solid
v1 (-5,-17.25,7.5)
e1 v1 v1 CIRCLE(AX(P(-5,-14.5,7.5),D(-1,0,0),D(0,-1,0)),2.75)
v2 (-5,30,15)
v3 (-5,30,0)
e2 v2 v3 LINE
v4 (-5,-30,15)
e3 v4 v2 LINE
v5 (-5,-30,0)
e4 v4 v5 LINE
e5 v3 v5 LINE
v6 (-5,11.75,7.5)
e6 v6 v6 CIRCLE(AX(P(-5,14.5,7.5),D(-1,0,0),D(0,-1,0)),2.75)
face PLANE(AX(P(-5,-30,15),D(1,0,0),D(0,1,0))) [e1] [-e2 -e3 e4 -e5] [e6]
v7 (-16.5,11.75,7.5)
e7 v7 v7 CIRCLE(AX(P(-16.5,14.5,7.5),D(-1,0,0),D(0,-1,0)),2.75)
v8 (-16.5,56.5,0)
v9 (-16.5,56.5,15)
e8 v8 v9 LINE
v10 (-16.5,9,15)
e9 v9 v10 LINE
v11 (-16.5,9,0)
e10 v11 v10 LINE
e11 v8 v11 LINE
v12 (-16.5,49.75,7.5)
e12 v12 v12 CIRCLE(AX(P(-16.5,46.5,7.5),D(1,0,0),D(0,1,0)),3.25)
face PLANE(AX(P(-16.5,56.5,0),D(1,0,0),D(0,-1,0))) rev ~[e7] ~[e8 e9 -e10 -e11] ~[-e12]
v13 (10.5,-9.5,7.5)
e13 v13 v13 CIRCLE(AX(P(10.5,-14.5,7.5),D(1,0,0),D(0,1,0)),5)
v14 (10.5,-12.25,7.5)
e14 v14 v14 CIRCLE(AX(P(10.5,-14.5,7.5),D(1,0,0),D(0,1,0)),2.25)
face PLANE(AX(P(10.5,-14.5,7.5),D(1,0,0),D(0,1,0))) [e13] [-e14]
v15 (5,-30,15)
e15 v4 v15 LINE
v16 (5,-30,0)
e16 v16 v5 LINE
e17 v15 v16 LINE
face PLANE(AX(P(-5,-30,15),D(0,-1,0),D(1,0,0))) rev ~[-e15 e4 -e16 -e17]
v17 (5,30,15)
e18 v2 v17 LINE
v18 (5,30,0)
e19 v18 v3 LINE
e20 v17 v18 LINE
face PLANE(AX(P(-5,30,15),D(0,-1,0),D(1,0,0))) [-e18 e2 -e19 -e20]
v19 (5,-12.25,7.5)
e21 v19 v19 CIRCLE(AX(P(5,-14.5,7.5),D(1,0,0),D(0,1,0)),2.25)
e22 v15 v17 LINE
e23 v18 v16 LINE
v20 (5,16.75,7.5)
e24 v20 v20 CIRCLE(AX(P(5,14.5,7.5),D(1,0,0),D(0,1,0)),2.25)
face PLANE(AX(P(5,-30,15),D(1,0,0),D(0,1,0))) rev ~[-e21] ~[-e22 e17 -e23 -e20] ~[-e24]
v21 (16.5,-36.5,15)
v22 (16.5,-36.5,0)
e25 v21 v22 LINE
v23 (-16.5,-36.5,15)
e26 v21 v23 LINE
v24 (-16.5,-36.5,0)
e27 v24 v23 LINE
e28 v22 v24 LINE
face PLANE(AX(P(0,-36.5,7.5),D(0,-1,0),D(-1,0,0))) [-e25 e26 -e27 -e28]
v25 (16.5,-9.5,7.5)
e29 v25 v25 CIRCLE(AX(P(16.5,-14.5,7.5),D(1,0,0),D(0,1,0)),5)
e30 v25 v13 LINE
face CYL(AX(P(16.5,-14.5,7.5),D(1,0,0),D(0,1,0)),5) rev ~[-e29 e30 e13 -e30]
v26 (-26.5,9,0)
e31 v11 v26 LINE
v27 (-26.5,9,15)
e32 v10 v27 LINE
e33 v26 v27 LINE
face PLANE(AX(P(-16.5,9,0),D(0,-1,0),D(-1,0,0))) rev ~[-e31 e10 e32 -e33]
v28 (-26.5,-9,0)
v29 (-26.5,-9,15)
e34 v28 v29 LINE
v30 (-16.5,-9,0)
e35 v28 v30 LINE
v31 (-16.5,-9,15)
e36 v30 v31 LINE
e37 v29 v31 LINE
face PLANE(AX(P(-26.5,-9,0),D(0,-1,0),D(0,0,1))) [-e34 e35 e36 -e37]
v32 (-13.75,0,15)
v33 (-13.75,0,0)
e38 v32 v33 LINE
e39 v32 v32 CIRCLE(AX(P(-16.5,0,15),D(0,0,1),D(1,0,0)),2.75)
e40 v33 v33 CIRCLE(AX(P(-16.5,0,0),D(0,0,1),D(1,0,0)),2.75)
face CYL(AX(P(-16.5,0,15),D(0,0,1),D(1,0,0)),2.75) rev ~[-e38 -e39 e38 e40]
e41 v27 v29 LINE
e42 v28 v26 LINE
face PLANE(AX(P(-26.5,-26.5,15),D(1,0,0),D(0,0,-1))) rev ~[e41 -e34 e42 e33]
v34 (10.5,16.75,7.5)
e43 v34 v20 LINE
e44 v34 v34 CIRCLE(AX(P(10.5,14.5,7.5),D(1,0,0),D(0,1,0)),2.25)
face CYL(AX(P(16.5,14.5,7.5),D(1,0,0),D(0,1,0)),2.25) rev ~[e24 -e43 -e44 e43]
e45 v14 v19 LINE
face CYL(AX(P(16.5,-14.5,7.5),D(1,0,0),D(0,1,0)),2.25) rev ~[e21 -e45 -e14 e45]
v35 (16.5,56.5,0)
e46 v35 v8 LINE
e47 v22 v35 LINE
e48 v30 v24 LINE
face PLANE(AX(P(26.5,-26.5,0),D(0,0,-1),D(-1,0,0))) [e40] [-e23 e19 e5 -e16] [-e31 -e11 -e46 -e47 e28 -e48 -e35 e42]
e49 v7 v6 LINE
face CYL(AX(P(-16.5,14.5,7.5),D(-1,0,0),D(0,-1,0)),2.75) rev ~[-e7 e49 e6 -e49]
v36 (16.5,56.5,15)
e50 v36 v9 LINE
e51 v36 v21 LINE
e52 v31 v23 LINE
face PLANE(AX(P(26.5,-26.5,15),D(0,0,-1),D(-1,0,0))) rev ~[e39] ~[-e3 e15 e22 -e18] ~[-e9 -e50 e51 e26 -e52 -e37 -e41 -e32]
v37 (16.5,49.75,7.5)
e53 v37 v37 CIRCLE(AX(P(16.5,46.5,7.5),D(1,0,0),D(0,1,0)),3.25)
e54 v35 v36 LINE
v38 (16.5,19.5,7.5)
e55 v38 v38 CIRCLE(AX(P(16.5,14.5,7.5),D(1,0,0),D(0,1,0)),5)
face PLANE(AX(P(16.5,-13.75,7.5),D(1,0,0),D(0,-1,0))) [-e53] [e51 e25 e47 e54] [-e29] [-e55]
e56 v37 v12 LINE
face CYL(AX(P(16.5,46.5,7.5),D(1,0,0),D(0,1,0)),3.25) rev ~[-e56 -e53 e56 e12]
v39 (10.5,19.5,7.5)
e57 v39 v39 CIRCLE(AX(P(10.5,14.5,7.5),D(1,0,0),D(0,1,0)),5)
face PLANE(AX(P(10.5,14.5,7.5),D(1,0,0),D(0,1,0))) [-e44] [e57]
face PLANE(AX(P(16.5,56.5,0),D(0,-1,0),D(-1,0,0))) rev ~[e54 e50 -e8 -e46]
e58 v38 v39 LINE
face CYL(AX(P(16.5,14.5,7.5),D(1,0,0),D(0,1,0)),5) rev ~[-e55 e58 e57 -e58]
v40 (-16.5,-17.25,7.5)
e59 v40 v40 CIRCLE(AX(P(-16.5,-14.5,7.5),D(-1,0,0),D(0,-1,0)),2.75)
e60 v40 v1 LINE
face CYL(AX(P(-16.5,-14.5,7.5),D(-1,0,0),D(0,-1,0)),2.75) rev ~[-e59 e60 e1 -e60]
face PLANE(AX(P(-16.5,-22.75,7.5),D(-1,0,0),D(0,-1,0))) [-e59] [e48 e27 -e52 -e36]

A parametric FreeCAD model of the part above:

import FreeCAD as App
import Part
import Sketcher
from FreeCAD import Vector
Q = App.Units.Quantity


def add_polygon(sketch, points):
    """Adds a closed chain of lines whose ends are joined by coincident constraints."""
    first, n = sketch.GeometryCount, len(points)
    for a, b in zip(points, points[1:] + points[:1]):
        sketch.addGeometry(Part.LineSegment(App.Vector(*a, 0), App.Vector(*b, 0)), False)
    for i in range(n):
        sketch.addConstraint(Sketcher.Constraint("Coincident", first + i, 2, first + (i + 1) % n, 1))

doc = App.newDocument("Part")
body = doc.addObject("PartDesign::Body", "Body")

# Sketch on XY plane
sketch1 = body.newObject("Sketcher::SketchObject", "Sketch")
sketch1.AttachmentSupport = (doc.getObject("XY_Plane"), [""])
sketch1.MapMode = "FlatFace"
add_polygon(sketch1, [(-16.5, 56.5), (-16.5, 9), (-26.5, 9), (-26.5, -26.5), (26.5, -26.5), (26.5, 9), (16.5, 9), (16.5, 56.5)])  # lines 0-7
sketch1.addConstraint(Sketcher.Constraint("Vertical", 0))
sketch1.addConstraint(Sketcher.Constraint("Horizontal", 1))
sketch1.addConstraint(Sketcher.Constraint("Vertical", 2))
sketch1.addConstraint(Sketcher.Constraint("Horizontal", 3))
sketch1.addConstraint(Sketcher.Constraint("Vertical", 4))
sketch1.addConstraint(Sketcher.Constraint("Horizontal", 5))
sketch1.addConstraint(Sketcher.Constraint("Vertical", 6))
sketch1.addConstraint(Sketcher.Constraint("Horizontal", 7))
sketch1.addConstraint(Sketcher.Constraint("Symmetric", 1, 2, 4, 2, -2))
sketch1.addConstraint(Sketcher.Constraint("Equal", 1, 5))
sketch1.addConstraint(Sketcher.Constraint("DistanceX", 1, 2, 1, 1, Q("10 mm")))
sketch1.addConstraint(Sketcher.Constraint("DistanceX", 3, 1, 3, 2, Q("53 mm")))
sketch1.addConstraint(Sketcher.Constraint("DistanceY", 0, 2, 0, 1, Q("47.5 mm")))
sketch1.addConstraint(Sketcher.Constraint("DistanceY", 2, 2, 2, 1, Q("35.5 mm")))
sketch1.addConstraint(Sketcher.Constraint("DistanceY", -1, 1, 0, 2, Q("9 mm")))
pad1 = body.newObject("PartDesign::Pad", "Pad")
pad1.Profile = sketch1
pad1.Length = 15

# Sketch on YZ plane
sketch2 = body.newObject("Sketcher::SketchObject", "Sketch001")
sketch2.AttachmentSupport = (doc.getObject("YZ_Plane"), [""])
sketch2.MapMode = "FlatFace"
sketch2.AttachmentOffset = App.Placement(Vector(0, 0, 16.5), App.Rotation())
sketch2.addGeometry(Part.Circle(Vector(46.5, 7.5, 0), Vector(0, 0, 1), 3.25), False)
sketch2.addConstraint(Sketcher.Constraint("Diameter", 0, Q("6.5 mm")))
sketch2.addConstraint(Sketcher.Constraint("DistanceX", -1, 1, 0, 3, Q("46.5 mm")))
sketch2.addConstraint(Sketcher.Constraint("DistanceY", -1, 1, 0, 3, Q("7.5 mm")))
pocket1 = body.newObject("PartDesign::Pocket", "Pocket")
pocket1.Profile = sketch2
pocket1.Length = 40

# Sketch on XY plane
sketch3 = body.newObject("Sketcher::SketchObject", "Sketch002")
sketch3.AttachmentSupport = (doc.getObject("XY_Plane"), [""])
sketch3.MapMode = "FlatFace"
sketch3.AttachmentOffset = App.Placement(Vector(0, 0, 15), App.Rotation())
sketch3.addGeometry(Part.Circle(Vector(-16.5, 0, 0), Vector(0, 0, 1), 2.75), False)
sketch3.addConstraint(Sketcher.Constraint("PointOnObject", 0, 3, -1))
sketch3.addConstraint(Sketcher.Constraint("Diameter", 0, Q("5.5 mm")))
sketch3.addConstraint(Sketcher.Constraint("DistanceX", 0, 3, -1, 1, Q("16.5 mm")))
pocket2 = body.newObject("PartDesign::Pocket", "Pocket001")
pocket2.Profile = sketch3
pocket2.Length = 20

# Sketch on XZ plane
sketch4 = body.newObject("Sketcher::SketchObject", "Sketch003")
sketch4.AttachmentSupport = (doc.getObject("XZ_Plane"), [""])
sketch4.MapMode = "FlatFace"
sketch4.AttachmentOffset = App.Placement(Vector(0, 0, 26.5), App.Rotation())
add_polygon(sketch4, [(26.5, 0), (26.5, 15), (-26.5, 15), (-26.5, 0)])  # lines 0-3
sketch4.addConstraint(Sketcher.Constraint("Vertical", 0))
sketch4.addConstraint(Sketcher.Constraint("Horizontal", 1))
sketch4.addConstraint(Sketcher.Constraint("Vertical", 2))
sketch4.addConstraint(Sketcher.Constraint("Horizontal", 3))
sketch4.addConstraint(Sketcher.Constraint("Symmetric", 2, 2, 3, 2, -1, 1))
sketch4.addConstraint(Sketcher.Constraint("DistanceX", 1, 2, 1, 1, Q("53 mm")))
sketch4.addConstraint(Sketcher.Constraint("DistanceY", 0, 1, 0, 2, Q("15 mm")))
pad2 = body.newObject("PartDesign::Pad", "Pad001")
pad2.Profile = sketch4
pad2.Length = 10

# Sketch on XY plane
sketch5 = body.newObject("Sketcher::SketchObject", "Sketch004")
sketch5.AttachmentSupport = (doc.getObject("XY_Plane"), [""])
sketch5.MapMode = "FlatFace"
sketch5.AttachmentOffset = App.Placement(Vector(0, 0, 15), App.Rotation())
add_polygon(sketch5, [(-5, 30), (-5, -30), (5, -30), (5, 30)])  # lines 0-3
sketch5.addConstraint(Sketcher.Constraint("Vertical", 0))
sketch5.addConstraint(Sketcher.Constraint("Horizontal", 1))
sketch5.addConstraint(Sketcher.Constraint("Vertical", 2))
sketch5.addConstraint(Sketcher.Constraint("Horizontal", 3))
sketch5.addConstraint(Sketcher.Constraint("Symmetric", 0, 2, 2, 2, -1, 1))
sketch5.addConstraint(Sketcher.Constraint("DistanceX", 1, 1, 1, 2, Q("10 mm")))
sketch5.addConstraint(Sketcher.Constraint("DistanceY", 0, 2, 0, 1, Q("60 mm")))
pocket3 = body.newObject("PartDesign::Pocket", "Pocket002")
pocket3.Profile = sketch5
pocket3.Length = 20

# Sketch on YZ plane
sketch6 = body.newObject("Sketcher::SketchObject", "Sketch005")
sketch6.AttachmentSupport = (doc.getObject("YZ_Plane"), [""])
sketch6.MapMode = "FlatFace"
sketch6.AttachmentOffset = App.Placement(Vector(0, 0, 26.5), App.Rotation())
add_polygon(sketch6, [(9, 0), (9, 15), (-36.5, 15), (-36.5, 0)])  # lines 0-3
sketch6.addConstraint(Sketcher.Constraint("Vertical", 0))
sketch6.addConstraint(Sketcher.Constraint("Horizontal", 1))
sketch6.addConstraint(Sketcher.Constraint("Vertical", 2))
sketch6.addConstraint(Sketcher.Constraint("Horizontal", 3))
sketch6.addConstraint(Sketcher.Constraint("PointOnObject", 2, 2, -1))
sketch6.addConstraint(Sketcher.Constraint("DistanceY", 0, 1, 0, 2, Q("15 mm")))
sketch6.addConstraint(Sketcher.Constraint("DistanceX", 1, 2, 1, 1, Q("45.5 mm")))
sketch6.addConstraint(Sketcher.Constraint("DistanceX", -1, 1, 0, 2, Q("9 mm")))
pocket4 = body.newObject("PartDesign::Pocket", "Pocket003")
pocket4.Profile = sketch6
pocket4.Length = 10

# Sketch on YZ plane
sketch7 = body.newObject("Sketcher::SketchObject", "Sketch006")
sketch7.AttachmentSupport = (doc.getObject("YZ_Plane"), [""])
sketch7.MapMode = "FlatFace"
sketch7.AttachmentOffset = App.Placement(Vector(0, 0, 16.5), App.Rotation())
sketch7.addGeometry(Part.Circle(Vector(-14.5, 7.5, 0), Vector(0, 0, 1), 2.25), False)
sketch7.addGeometry(Part.Circle(Vector(14.5, 7.5, 0), Vector(0, 0, 1), 2.25), False)
sketch7.addConstraint(Sketcher.Constraint("Equal", 0, 1))
sketch7.addConstraint(Sketcher.Constraint("Symmetric", 0, 3, 1, 3, -2))
sketch7.addConstraint(Sketcher.Constraint("Diameter", 0, Q("4.5 mm")))
sketch7.addConstraint(Sketcher.Constraint("DistanceX", 0, 3, 1, 3, Q("29 mm")))
sketch7.addConstraint(Sketcher.Constraint("DistanceY", -1, 1, 0, 3, Q("7.5 mm")))
pocket5 = body.newObject("PartDesign::Pocket", "Pocket004")
pocket5.Profile = sketch7
pocket5.Length = 100

# Sketch on YZ plane
sketch8 = body.newObject("Sketcher::SketchObject", "Sketch007")
sketch8.AttachmentSupport = (doc.getObject("YZ_Plane"), [""])
sketch8.MapMode = "FlatFace"
sketch8.AttachmentOffset = App.Placement(Vector(0, 0, -16.5), App.Rotation())
sketch8.addGeometry(Part.Circle(Vector(14.5, 7.5, 0), Vector(0, 0, 1), 2.75), False)
sketch8.addConstraint(Sketcher.Constraint("Diameter", 0, Q("5.5 mm")))
sketch8.addConstraint(Sketcher.Constraint("DistanceX", -1, 1, 0, 3, Q("14.5 mm")))
sketch8.addConstraint(Sketcher.Constraint("DistanceY", -1, 1, 0, 3, Q("7.5 mm")))
pocket6 = body.newObject("PartDesign::Pocket", "Pocket005")
pocket6.Profile = sketch8
pocket6.Length = 15
pocket6.Reversed = True

# Sketch on YZ plane
sketch9 = body.newObject("Sketcher::SketchObject", "Sketch008")
sketch9.AttachmentSupport = (doc.getObject("YZ_Plane"), [""])
sketch9.MapMode = "FlatFace"
sketch9.AttachmentOffset = App.Placement(Vector(0, 0, -26.5), App.Rotation())
add_polygon(sketch9, [(-9, 15), (-9, 0), (-36.5, 0), (-36.5, 15)])  # lines 0-3
sketch9.addConstraint(Sketcher.Constraint("Vertical", 0))
sketch9.addConstraint(Sketcher.Constraint("Horizontal", 1))
sketch9.addConstraint(Sketcher.Constraint("Vertical", 2))
sketch9.addConstraint(Sketcher.Constraint("Horizontal", 3))
sketch9.addConstraint(Sketcher.Constraint("PointOnObject", 0, 2, -1))
sketch9.addConstraint(Sketcher.Constraint("DistanceY", 0, 2, 0, 1, Q("15 mm")))
sketch9.addConstraint(Sketcher.Constraint("DistanceX", 1, 2, 1, 1, Q("27.5 mm")))
sketch9.addConstraint(Sketcher.Constraint("DistanceX", 0, 2, -1, 1, Q("9 mm")))
pocket7 = body.newObject("PartDesign::Pocket", "Pocket006")
pocket7.Profile = sketch9
pocket7.Length = 10
pocket7.Reversed = True

# Sketch on YZ plane
sketch10 = body.newObject("Sketcher::SketchObject", "Sketch009")
sketch10.AttachmentSupport = (doc.getObject("YZ_Plane"), [""])
sketch10.MapMode = "FlatFace"
sketch10.AttachmentOffset = App.Placement(Vector(0, 0, -16.5), App.Rotation())
sketch10.addGeometry(Part.Circle(Vector(-14.5, 7.5, 0), Vector(0, 0, 1), 2.75), False)
sketch10.addConstraint(Sketcher.Constraint("Diameter", 0, Q("5.5 mm")))
sketch10.addConstraint(Sketcher.Constraint("DistanceX", 0, 3, -1, 1, Q("14.5 mm")))
sketch10.addConstraint(Sketcher.Constraint("DistanceY", -1, 1, 0, 3, Q("7.5 mm")))
pocket8 = body.newObject("PartDesign::Pocket", "Pocket007")
pocket8.Profile = sketch10
pocket8.Length = 15
pocket8.Reversed = True

# Sketch on YZ plane
sketch11 = body.newObject("Sketcher::SketchObject", "Sketch010")
sketch11.AttachmentSupport = (doc.getObject("YZ_Plane"), [""])
sketch11.MapMode = "FlatFace"
sketch11.AttachmentOffset = App.Placement(Vector(0, 0, 16.5), App.Rotation())
sketch11.addGeometry(Part.Circle(Vector(-14.5, 7.5, 0), Vector(0, 0, 1), 5), False)
sketch11.addGeometry(Part.Circle(Vector(14.5, 7.5, 0), Vector(0, 0, 1), 5), False)
sketch11.addConstraint(Sketcher.Constraint("Equal", 0, 1))
sketch11.addConstraint(Sketcher.Constraint("Symmetric", 0, 3, 1, 3, -2))
sketch11.addConstraint(Sketcher.Constraint("Diameter", 0, Q("10 mm")))
sketch11.addConstraint(Sketcher.Constraint("DistanceX", 0, 3, 1, 3, Q("29 mm")))
sketch11.addConstraint(Sketcher.Constraint("DistanceY", -1, 1, 0, 3, Q("7.5 mm")))
pocket9 = body.newObject("PartDesign::Pocket", "Pocket008")
pocket9.Profile = sketch11
pocket9.Length = 6

doc.recompute()
